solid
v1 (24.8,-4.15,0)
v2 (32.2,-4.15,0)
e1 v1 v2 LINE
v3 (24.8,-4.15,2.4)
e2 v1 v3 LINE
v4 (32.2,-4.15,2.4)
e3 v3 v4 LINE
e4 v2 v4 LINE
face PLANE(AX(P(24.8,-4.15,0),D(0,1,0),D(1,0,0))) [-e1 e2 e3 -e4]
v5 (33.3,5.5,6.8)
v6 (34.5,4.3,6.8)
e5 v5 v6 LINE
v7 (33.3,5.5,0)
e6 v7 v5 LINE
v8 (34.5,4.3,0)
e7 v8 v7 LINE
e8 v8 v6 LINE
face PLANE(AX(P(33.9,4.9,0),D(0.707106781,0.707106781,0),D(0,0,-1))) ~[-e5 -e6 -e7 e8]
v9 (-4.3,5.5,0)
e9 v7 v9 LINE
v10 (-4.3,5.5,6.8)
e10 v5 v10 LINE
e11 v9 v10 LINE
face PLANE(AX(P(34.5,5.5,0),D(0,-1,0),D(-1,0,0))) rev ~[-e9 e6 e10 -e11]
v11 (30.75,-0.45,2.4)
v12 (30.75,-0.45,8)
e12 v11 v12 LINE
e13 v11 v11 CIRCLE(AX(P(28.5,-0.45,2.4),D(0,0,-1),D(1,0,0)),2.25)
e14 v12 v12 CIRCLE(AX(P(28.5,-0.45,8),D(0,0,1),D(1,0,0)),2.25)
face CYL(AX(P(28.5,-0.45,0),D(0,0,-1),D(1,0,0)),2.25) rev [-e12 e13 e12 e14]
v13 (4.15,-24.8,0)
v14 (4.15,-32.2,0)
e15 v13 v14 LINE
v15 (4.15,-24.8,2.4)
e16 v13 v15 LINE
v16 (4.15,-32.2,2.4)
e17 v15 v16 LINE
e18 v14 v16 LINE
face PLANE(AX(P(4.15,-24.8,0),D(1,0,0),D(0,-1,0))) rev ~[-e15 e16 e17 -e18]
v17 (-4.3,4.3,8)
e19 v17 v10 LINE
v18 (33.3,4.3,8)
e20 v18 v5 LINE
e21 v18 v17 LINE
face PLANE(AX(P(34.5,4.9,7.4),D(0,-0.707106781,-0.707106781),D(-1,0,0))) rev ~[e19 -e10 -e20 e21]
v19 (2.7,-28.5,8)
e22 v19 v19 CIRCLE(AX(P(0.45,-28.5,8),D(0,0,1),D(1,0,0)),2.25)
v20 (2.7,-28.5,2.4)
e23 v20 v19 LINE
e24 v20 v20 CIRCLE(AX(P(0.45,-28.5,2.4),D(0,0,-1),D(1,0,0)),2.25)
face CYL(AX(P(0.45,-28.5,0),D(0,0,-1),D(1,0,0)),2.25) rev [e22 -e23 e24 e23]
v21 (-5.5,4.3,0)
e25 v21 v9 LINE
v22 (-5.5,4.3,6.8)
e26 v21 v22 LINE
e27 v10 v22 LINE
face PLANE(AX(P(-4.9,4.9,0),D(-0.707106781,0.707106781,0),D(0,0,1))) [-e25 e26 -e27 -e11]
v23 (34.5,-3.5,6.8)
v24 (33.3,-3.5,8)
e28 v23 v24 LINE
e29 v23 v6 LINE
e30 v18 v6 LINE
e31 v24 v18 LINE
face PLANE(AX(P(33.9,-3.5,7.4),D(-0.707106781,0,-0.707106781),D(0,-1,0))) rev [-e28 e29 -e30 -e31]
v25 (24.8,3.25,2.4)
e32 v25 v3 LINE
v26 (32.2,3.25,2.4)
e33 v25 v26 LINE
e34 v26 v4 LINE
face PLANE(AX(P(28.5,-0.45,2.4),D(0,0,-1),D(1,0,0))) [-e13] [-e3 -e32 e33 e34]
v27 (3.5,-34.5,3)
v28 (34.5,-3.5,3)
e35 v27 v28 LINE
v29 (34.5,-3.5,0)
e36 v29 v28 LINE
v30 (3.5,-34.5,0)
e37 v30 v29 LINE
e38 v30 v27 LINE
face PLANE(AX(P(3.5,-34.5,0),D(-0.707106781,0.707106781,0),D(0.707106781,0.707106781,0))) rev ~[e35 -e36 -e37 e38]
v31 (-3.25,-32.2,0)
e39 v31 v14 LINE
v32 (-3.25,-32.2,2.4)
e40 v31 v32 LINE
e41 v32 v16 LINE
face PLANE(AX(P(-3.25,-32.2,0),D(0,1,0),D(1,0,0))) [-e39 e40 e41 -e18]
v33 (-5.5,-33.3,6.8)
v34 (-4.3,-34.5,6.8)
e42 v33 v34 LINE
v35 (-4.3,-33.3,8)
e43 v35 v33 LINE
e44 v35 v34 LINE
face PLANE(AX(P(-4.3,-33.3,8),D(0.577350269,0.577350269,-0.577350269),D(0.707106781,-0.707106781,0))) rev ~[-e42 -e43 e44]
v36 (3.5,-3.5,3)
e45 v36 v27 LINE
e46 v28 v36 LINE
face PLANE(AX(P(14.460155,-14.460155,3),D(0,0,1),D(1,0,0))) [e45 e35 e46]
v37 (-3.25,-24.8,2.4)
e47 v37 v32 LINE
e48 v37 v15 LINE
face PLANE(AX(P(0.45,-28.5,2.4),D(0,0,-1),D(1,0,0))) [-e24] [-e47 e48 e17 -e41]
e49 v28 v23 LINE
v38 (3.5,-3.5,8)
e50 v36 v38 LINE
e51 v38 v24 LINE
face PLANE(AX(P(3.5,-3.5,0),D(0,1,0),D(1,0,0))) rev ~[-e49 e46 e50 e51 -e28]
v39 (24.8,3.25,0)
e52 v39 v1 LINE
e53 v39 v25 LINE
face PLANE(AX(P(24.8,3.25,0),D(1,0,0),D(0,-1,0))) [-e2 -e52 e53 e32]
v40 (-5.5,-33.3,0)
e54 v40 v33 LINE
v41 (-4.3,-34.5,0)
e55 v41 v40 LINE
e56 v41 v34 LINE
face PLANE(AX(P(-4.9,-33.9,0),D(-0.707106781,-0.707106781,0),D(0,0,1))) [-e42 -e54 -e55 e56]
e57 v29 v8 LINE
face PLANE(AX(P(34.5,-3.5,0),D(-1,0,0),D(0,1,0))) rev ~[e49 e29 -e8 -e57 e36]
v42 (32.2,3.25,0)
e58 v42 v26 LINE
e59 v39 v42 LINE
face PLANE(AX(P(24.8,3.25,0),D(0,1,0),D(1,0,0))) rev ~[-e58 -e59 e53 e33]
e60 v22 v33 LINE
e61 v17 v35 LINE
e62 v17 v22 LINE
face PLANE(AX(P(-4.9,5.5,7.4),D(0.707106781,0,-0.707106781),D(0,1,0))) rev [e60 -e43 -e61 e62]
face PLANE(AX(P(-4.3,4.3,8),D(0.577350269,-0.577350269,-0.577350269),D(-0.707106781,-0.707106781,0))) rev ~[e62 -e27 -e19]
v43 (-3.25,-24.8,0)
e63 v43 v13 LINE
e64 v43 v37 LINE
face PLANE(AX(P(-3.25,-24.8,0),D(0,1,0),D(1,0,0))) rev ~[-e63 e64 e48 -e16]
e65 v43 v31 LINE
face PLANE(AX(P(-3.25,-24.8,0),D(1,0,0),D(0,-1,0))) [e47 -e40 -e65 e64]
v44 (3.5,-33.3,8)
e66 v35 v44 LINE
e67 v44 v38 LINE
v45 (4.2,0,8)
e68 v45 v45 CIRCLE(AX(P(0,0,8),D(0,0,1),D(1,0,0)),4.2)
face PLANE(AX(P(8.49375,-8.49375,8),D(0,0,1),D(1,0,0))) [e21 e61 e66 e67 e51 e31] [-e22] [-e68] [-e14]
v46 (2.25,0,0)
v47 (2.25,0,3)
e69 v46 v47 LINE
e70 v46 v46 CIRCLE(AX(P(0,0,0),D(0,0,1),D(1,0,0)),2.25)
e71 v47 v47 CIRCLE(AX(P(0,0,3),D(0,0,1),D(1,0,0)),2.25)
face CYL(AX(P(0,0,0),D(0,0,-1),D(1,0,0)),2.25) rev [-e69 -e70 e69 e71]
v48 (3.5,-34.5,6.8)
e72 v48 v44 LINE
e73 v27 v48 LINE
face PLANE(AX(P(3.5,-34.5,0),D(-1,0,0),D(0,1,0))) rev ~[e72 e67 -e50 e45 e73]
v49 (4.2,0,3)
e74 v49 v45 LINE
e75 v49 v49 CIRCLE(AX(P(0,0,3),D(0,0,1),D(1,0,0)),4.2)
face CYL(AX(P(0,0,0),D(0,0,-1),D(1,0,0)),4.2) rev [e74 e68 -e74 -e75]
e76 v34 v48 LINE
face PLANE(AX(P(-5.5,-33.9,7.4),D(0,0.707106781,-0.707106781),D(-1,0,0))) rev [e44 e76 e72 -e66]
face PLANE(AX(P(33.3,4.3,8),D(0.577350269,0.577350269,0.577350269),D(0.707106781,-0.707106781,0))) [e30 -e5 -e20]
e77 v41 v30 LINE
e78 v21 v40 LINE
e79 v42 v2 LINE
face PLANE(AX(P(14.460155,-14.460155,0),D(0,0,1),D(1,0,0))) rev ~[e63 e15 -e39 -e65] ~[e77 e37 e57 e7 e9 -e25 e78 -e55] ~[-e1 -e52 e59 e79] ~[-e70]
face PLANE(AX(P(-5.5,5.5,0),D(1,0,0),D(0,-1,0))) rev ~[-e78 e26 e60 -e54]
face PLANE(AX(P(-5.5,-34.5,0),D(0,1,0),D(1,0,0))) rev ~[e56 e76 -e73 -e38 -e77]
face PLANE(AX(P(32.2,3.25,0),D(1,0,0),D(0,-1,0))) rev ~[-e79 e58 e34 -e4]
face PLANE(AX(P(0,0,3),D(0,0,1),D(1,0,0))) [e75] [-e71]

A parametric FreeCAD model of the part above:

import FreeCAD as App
import Part
import Sketcher
from FreeCAD import Vector


def edges_at(feature, points):
    """Names of the edges that pass closest to the given points."""
    edges = feature.Shape.Edges
    near = lambda p: min(range(len(edges)), key=lambda i: edges[i].distToShape(Part.Vertex(*p))[0])
    return sorted({f"Edge{near(p) + 1}" for p in points})

doc = App.newDocument("Part")
body = doc.addObject("PartDesign::Body", "Body")

sketch1 = doc.addObject("Sketcher::SketchObject", "Sketch")
body.addObject(sketch1)
sketch1.AttachmentSupport = (doc.XY_Plane, [""])
sketch1.MapMode = "FlatFace"
sketch1.addGeometry([
    Part.LineSegment(Vector(34.5, 5.5, 0), Vector(-5.5, 5.5, 0)),
    Part.LineSegment(Vector(-5.5, 5.5, 0), Vector(-5.5, -34.5, 0)),
    Part.LineSegment(Vector(-5.5, -34.5, 0), Vector(3.5, -34.5, 0)),
    Part.LineSegment(Vector(3.5, -34.5, 0), Vector(3.5, -3.5, 0)),
    Part.LineSegment(Vector(3.5, -3.5, 0), Vector(34.5, -3.5, 0)),
    Part.LineSegment(Vector(34.5, -3.5, 0), Vector(34.5, 5.5, 0)),
    Part.Circle(Vector(0.5, -28.5, 0), Vector(0, 0, 1), 2.2),
    Part.Circle(Vector(0, 0, 0), Vector(0, 0, 1), 4.2),
    Part.Circle(Vector(28.5, -0.5, 0), Vector(0, 0, 1), 2.2),
], False)
sketch1.addConstraint([
    Sketcher.Constraint("Coincident", 0, 2, 1, 1),
    Sketcher.Constraint("Coincident", 1, 2, 2, 1),
    Sketcher.Constraint("Coincident", 2, 2, 3, 1),
    Sketcher.Constraint("Coincident", 3, 2, 4, 1),
    Sketcher.Constraint("Coincident", 4, 2, 5, 1),
    Sketcher.Constraint("Coincident", 5, 2, 0, 1),
    Sketcher.Constraint("Horizontal", 0),
    Sketcher.Constraint("Vertical", 1),
    Sketcher.Constraint("Horizontal", 2),
    Sketcher.Constraint("Vertical", 3),
    Sketcher.Constraint("Horizontal", 4),
    Sketcher.Constraint("Vertical", 5),
    Sketcher.Constraint("Coincident", 7, 3, -1, 1),
    Sketcher.Constraint("Equal", 6, 8),
    Sketcher.Constraint("Equal", 0, 1),
    Sketcher.Constraint("Equal", 4, 3),
    Sketcher.Constraint("Diameter", 6, 4.5),
    Sketcher.Constraint("Diameter", 7, 8.4),
    Sketcher.Constraint("DistanceX", 0, 2, 0, 1, 40.0),
    Sketcher.Constraint("DistanceX", 2, 1, 2, 2, 9.0),
    Sketcher.Constraint("DistanceY", 6, 3, 0, 2, 34.0),
    Sketcher.Constraint("DistanceX", 0, 2, 8, 3, 34.0),
    Sketcher.Constraint("DistanceY", 6, 3, -1, 1, 28.5),
    Sketcher.Constraint("DistanceX", -1, 1, 8, 3, 28.5),
    Sketcher.Constraint("DistanceX", -1, 1, 6, 3, 0.45),
    Sketcher.Constraint("DistanceY", 8, 3, -1, 1, 0.45),
])
pad1 = doc.addObject("PartDesign::Pad", "Pad")
body.addObject(pad1)
pad1.Profile = sketch1
pad1.Length = 8

sketch2 = doc.addObject("Sketcher::SketchObject", "Sketch001")
body.addObject(sketch2)
sketch2.AttachmentSupport = (doc.XY_Plane, [""])
sketch2.MapMode = "FlatFace"
sketch2.addGeometry([
    Part.LineSegment(Vector(3.5, -34.5, 0), Vector(34.5, -3.5, 0)),
    Part.LineSegment(Vector(34.5, -3.5, 0), Vector(3.5, -3.5, 0)),
    Part.LineSegment(Vector(3.5, -3.5, 0), Vector(3.5, -34.5, 0)),
    Part.Circle(Vector(0, 0, 0), Vector(0, 0, 1), 4.2),
    Part.Circle(Vector(0, 0, 0), Vector(0, 0, 1), 2.2),
], False)
sketch2.addConstraint([
    Sketcher.Constraint("Coincident", 0, 2, 1, 1),
    Sketcher.Constraint("Coincident", 1, 2, 2, 1),
    Sketcher.Constraint("Coincident", 2, 2, 0, 1),
    Sketcher.Constraint("Horizontal", 1),
    Sketcher.Constraint("Vertical", 2),
    Sketcher.Constraint("Coincident", 3, 3, -1, 1),
    Sketcher.Constraint("Coincident", 4, 3, -1, 1),
    Sketcher.Constraint("Equal", 1, 2),
    Sketcher.Constraint("Diameter", 3, 8.4),
    Sketcher.Constraint("Diameter", 4, 4.5),
    Sketcher.Constraint("DistanceX", 1, 2, 1, 1, 31.0),
    Sketcher.Constraint("DistanceX", -1, 1, 0, 2, 34.5),
    Sketcher.Constraint("DistanceY", 0, 2, -1, 1, 3.5),
])
pad2 = doc.addObject("PartDesign::Pad", "Pad001")
body.addObject(pad2)
pad2.Profile = sketch2
pad2.Length = 3

sketch3 = doc.addObject("Sketcher::SketchObject", "Sketch002")
body.addObject(sketch3)
sketch3.AttachmentSupport = (doc.XY_Plane, [""])
sketch3.MapMode = "FlatFace"
sketch3.addGeometry([
    Part.LineSegment(Vector(-3.2, -32.2, 0), Vector(-3.2, -24.8, 0)),
    Part.LineSegment(Vector(-3.2, -24.8, 0), Vector(4.2, -24.8, 0)),
    Part.LineSegment(Vector(4.2, -24.8, 0), Vector(4.2, -32.2, 0)),
    Part.LineSegment(Vector(4.2, -32.2, 0), Vector(-3.2, -32.2, 0)),
    Part.Circle(Vector(0.5, -28.5, 0), Vector(0, 0, 1), 2.2),
    Part.LineSegment(Vector(24.8, -4.2, 0), Vector(24.8, 3.2, 0)),
    Part.LineSegment(Vector(24.8, 3.2, 0), Vector(32.2, 3.2, 0)),
    Part.LineSegment(Vector(32.2, 3.2, 0), Vector(32.2, -4.2, 0)),
    Part.LineSegment(Vector(32.2, -4.2, 0), Vector(24.8, -4.2, 0)),
    Part.Circle(Vector(28.5, -0.5, 0), Vector(0, 0, 1), 2.2),
], False)
sketch3.addConstraint([
    Sketcher.Constraint("Coincident", 0, 2, 1, 1),
    Sketcher.Constraint("Coincident", 1, 2, 2, 1),
    Sketcher.Constraint("Coincident", 2, 2, 3, 1),
    Sketcher.Constraint("Coincident", 3, 2, 0, 1),
    Sketcher.Constraint("Coincident", 5, 2, 6, 1),
    Sketcher.Constraint("Coincident", 6, 2, 7, 1),
    Sketcher.Constraint("Coincident", 7, 2, 8, 1),
    Sketcher.Constraint("Coincident", 8, 2, 5, 1),
    Sketcher.Constraint("Vertical", 0),
    Sketcher.Constraint("Horizontal", 1),
    Sketcher.Constraint("Vertical", 2),
    Sketcher.Constraint("Horizontal", 3),
    Sketcher.Constraint("Vertical", 5),
    Sketcher.Constraint("Horizontal", 6),
    Sketcher.Constraint("Vertical", 7),
    Sketcher.Constraint("Horizontal", 8),
    Sketcher.Constraint("Equal", 4, 9),
    Sketcher.Constraint("Equal", 3, 6),
    Sketcher.Constraint("Equal", 8, 0),
    Sketcher.Constraint("Equal", 2, 5),
    Sketcher.Constraint("Diameter", 4, 4.5),
    Sketcher.Constraint("DistanceX", 1, 1, 1, 2, 7.4),
    Sketcher.Constraint("DistanceY", 4, 3, -1, 1, 28.5),
    Sketcher.Constraint("DistanceX", -1, 1, 9, 3, 28.5),
    Sketcher.Constraint("DistanceY", 0, 2, -1, 1, 24.8),
    Sketcher.Constraint("DistanceX", -1, 1, 5, 2, 24.8),
    Sketcher.Constraint("DistanceX", 0, 2, 4, 3, 3.7),
    Sketcher.Constraint("DistanceY", 9, 3, 5, 2, 3.7),
    Sketcher.Constraint("DistanceX", -1, 1, 4, 3, 0.45),
    Sketcher.Constraint("DistanceY", 9, 3, -1, 1, 0.45),
])
pocket1 = doc.addObject("PartDesign::Pocket", "Pocket")
body.addObject(pocket1)
pocket1.Profile = sketch3
pocket1.Length = 2.4
pocket1.Reversed = True
doc.recompute()

chamfer = doc.addObject("PartDesign::Chamfer", "Chamfer")
body.addObject(chamfer)
chamfer.Base = (pocket1, edges_at(pocket1, [
    (-5.5, 5.5, 4),
    (-5.5, -34.5, 4),
    (34.5, 5.5, 4),
    (14.5, 5.5, 8),
    (-5.5, -14.5, 8),
    (-1, -34.5, 8),
    (34.5, 1, 8),
]))
chamfer.Size = 1.2

doc.recompute()
